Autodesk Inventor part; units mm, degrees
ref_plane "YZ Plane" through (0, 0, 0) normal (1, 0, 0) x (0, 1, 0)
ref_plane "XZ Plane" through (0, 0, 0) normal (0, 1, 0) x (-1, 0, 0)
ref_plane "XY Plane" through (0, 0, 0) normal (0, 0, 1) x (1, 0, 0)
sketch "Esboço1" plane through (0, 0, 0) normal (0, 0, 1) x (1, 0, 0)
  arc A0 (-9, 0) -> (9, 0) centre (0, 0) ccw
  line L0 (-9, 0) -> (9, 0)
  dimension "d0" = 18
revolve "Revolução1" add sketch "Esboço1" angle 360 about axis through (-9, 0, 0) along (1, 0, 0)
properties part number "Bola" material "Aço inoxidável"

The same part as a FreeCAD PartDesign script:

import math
import FreeCAD as App
import Part
import Sketcher
Q = App.Units.Quantity

doc = App.newDocument("Part")
body = doc.addObject("PartDesign::Body", "Body")

# Sketch on XY plane
sketch1 = body.newObject("Sketcher::SketchObject", "Sketch")
sketch1.AttachmentSupport = (doc.getObject("XY_Plane"), [""])
sketch1.MapMode = "FlatFace"
sketch1.addGeometry(Part.LineSegment(App.Vector(9, 0, 0), App.Vector(-9, 0, 0)), False)
sketch1.addGeometry(Part.ArcOfCircle(Part.Circle(App.Vector(0, 0, 0), App.Vector(0, 0, 1), 9), math.radians(180), math.radians(360)), False)
sketch1.addConstraint(Sketcher.Constraint("Coincident", 0, 1, 1, 2))
sketch1.addConstraint(Sketcher.Constraint("Coincident", 1, 1, 0, 2))
sketch1.addConstraint(Sketcher.Constraint("Horizontal", 0))
sketch1.addConstraint(Sketcher.Constraint("Coincident", 1, 3, -1, 1))
sketch1.addConstraint(Sketcher.Constraint("PointOnObject", 0, 1, -1))
sketch1.addConstraint(Sketcher.Constraint("Radius", 1, Q("9 mm")))
revolution = body.newObject("PartDesign::Revolution", "Revolution")
revolution.Profile = sketch1
revolution.ReferenceAxis = (sketch1, ["H_Axis"])
revolution.Angle = 360

doc.recompute()
